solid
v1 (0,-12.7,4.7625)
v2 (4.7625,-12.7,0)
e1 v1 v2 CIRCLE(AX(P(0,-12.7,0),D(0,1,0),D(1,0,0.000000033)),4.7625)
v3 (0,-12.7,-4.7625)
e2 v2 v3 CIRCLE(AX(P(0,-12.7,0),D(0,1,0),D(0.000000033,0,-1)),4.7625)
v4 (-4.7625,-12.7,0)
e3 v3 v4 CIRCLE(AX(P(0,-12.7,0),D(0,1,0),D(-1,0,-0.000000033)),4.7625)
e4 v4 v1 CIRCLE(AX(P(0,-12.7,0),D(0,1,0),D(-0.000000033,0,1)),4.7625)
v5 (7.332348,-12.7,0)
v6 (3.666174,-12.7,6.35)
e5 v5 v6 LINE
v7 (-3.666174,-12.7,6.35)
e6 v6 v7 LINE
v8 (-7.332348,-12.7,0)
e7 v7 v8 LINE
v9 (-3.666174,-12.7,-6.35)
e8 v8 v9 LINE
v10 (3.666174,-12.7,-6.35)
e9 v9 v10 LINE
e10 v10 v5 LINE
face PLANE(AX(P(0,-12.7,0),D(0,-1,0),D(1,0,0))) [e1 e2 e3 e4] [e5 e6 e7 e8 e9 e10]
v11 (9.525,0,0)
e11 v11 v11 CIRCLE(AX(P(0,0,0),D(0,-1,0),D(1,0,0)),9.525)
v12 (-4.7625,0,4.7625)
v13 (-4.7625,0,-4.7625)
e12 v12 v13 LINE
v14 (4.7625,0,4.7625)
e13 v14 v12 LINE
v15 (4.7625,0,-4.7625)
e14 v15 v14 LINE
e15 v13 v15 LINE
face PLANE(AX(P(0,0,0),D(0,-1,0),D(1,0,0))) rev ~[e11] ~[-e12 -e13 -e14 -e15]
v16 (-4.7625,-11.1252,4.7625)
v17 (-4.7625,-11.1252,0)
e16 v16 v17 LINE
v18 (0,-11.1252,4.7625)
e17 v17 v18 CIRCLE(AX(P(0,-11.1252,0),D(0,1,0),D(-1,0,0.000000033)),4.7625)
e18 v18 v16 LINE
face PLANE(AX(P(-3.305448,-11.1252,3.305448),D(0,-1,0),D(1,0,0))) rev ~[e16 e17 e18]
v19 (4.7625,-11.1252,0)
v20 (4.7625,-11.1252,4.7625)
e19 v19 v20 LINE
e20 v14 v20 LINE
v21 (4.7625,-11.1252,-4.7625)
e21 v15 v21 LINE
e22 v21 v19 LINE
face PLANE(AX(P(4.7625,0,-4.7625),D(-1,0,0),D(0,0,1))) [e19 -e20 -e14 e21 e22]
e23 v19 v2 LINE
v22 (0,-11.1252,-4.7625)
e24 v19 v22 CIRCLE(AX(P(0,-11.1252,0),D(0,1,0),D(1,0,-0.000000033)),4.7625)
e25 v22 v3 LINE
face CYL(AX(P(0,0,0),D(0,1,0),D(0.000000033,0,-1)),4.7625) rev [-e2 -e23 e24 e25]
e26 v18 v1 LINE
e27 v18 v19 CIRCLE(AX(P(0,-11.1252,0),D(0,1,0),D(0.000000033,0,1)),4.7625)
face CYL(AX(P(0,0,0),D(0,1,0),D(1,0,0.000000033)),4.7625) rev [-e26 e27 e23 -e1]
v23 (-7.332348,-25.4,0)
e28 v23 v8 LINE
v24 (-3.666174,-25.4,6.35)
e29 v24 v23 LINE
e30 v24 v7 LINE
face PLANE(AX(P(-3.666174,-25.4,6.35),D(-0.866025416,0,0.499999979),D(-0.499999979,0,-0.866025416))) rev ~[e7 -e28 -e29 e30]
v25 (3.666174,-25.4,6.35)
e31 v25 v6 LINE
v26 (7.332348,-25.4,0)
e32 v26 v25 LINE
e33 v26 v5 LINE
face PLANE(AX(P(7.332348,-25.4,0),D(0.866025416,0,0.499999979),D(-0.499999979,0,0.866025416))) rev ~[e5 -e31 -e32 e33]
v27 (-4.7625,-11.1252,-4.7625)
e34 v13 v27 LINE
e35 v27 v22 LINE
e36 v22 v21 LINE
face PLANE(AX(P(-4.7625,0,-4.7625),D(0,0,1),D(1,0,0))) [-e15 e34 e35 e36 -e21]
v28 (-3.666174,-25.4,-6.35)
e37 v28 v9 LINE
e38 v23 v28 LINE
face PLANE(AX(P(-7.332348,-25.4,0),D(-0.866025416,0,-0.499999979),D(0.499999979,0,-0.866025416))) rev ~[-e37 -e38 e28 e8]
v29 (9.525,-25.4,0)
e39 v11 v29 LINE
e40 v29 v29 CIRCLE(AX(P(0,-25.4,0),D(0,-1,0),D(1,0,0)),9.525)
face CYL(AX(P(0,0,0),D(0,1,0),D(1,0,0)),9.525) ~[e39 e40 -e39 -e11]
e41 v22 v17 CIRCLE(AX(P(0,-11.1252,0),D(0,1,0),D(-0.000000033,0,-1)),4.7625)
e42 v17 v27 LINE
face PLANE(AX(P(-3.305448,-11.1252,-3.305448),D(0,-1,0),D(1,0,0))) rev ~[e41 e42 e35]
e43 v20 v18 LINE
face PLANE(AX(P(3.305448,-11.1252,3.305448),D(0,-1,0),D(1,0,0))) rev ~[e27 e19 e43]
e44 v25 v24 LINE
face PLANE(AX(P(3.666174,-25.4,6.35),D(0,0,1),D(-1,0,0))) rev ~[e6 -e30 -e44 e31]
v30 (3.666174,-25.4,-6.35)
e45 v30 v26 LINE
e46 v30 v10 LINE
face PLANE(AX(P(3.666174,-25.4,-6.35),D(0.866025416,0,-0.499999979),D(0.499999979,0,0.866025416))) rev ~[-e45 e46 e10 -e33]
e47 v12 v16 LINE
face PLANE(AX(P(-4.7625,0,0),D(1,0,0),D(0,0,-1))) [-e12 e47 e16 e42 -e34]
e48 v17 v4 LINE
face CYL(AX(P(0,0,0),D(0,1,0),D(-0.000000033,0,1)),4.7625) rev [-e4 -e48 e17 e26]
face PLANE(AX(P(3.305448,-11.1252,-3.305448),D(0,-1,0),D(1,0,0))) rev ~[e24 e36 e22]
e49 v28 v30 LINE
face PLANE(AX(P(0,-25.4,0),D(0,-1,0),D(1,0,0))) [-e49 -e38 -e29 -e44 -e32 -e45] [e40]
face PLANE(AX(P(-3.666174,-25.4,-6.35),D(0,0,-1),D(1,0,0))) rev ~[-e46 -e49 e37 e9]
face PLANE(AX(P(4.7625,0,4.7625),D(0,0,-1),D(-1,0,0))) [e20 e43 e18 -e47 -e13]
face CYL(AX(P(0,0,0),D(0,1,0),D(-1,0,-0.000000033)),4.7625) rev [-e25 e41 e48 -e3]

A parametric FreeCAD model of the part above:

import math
import FreeCAD as App
import Part
import Sketcher
Q = App.Units.Quantity

doc = App.newDocument("Part")
body = doc.addObject("PartDesign::Body", "Body")

# Sketch on XZ plane
sketch1 = doc.addObject("Sketcher::SketchObject", "Sketch")
body.addObject(sketch1)
sketch1.AttachmentSupport = (doc.XZ_Plane, [""])
sketch1.MapMode = "FlatFace"
sketch1.addGeometry(Part.Circle(App.Vector(0, 0, 0), App.Vector(0, 0, 1), 9.525), False)
sketch1.addConstraint(Sketcher.Constraint("Coincident", 0, 3, -1, 1))
sketch1.addConstraint(Sketcher.Constraint("Diameter", 0, Q("0.75 in")))
pad1 = doc.addObject("PartDesign::Pad", "Pad")
body.addObject(pad1)
pad1.Profile = sketch1
pad1.Length = Q("1 in")

# Sketch on XZ plane
sketch2 = doc.addObject("Sketcher::SketchObject", "Sketch001")
body.addObject(sketch2)
sketch2.AttachmentSupport = (doc.XZ_Plane, [""])
sketch2.MapMode = "FlatFace"
sketch2.addGeometry(Part.ArcOfCircle(Part.Circle(App.Vector(0, 0, 0), App.Vector(0, 0, 1), 4.7625), math.radians(-179.999998), math.radians(-90.000002)), False)
sketch2.addGeometry(Part.ArcOfCircle(Part.Circle(App.Vector(0, 0, 0), App.Vector(0, 0, 1), 4.7625), math.radians(-89.999998), math.radians(-0.000002)), False)
sketch2.addGeometry(Part.ArcOfCircle(Part.Circle(App.Vector(0, 0, 0), App.Vector(0, 0, 1), 4.7625), math.radians(0.000002), math.radians(89.999998)), False)
sketch2.addGeometry(Part.ArcOfCircle(Part.Circle(App.Vector(0, 0, 0), App.Vector(0, 0, 1), 4.7625), math.radians(90.000002), math.radians(179.999998)), False)
sketch2.addConstraint(Sketcher.Constraint("Tangent", 0, 2, 1, 1))
sketch2.addConstraint(Sketcher.Constraint("Tangent", 1, 2, 2, 1))
sketch2.addConstraint(Sketcher.Constraint("Tangent", 2, 2, 3, 1))
sketch2.addConstraint(Sketcher.Constraint("Tangent", 3, 2, 0, 1))
sketch2.addConstraint(Sketcher.Constraint("Coincident", 0, 3, -1, 1))
sketch2.addConstraint(Sketcher.Constraint("Equal", 0, 1))
sketch2.addConstraint(Sketcher.Constraint("PointOnObject", 0, 2, -2))
sketch2.addConstraint(Sketcher.Constraint("PointOnObject", 1, 2, -1))
sketch2.addConstraint(Sketcher.Constraint("PointOnObject", 2, 2, -2))
sketch2.addConstraint(Sketcher.Constraint("PointOnObject", 3, 2, -1))
sketch2.addConstraint(Sketcher.Constraint("Radius", 0, Q("0.1875 in")))
pocket1 = doc.addObject("PartDesign::Pocket", "Pocket")
body.addObject(pocket1)
pocket1.Profile = sketch2
pocket1.Type = "ThroughAll"
pocket1.Reversed = True

# Sketch on XZ plane
sketch3 = doc.addObject("Sketcher::SketchObject", "Sketch002")
body.addObject(sketch3)
sketch3.AttachmentSupport = (doc.XZ_Plane, [""])
sketch3.MapMode = "FlatFace"
sketch3.addGeometry(Part.ArcOfCircle(Part.Circle(App.Vector(0, 0, 0), App.Vector(0, 0, 1), 4.7625), math.radians(0.000002), math.radians(89.999998)), False)
sketch3.addGeometry(Part.LineSegment(App.Vector(4.7625, 0, 0), App.Vector(4.7625, 4.7625, 0)), False)
sketch3.addGeometry(Part.LineSegment(App.Vector(4.7625, 4.7625, 0), App.Vector(0, 4.7625, 0)), False)
sketch3.addGeometry(Part.LineSegment(App.Vector(-4.7625, 4.7625, 0), App.Vector(-4.7625, 0, 0)), False)
sketch3.addGeometry(Part.ArcOfCircle(Part.Circle(App.Vector(0, 0, 0), App.Vector(0, 0, 1), 4.7625), math.radians(90.000002), math.radians(179.999998)), False)
sketch3.addGeometry(Part.LineSegment(App.Vector(0, 4.7625, 0), App.Vector(-4.7625, 4.7625, 0)), False)
sketch3.addGeometry(Part.LineSegment(App.Vector(-4.7625, -4.7625, 0), App.Vector(0, -4.7625, 0)), False)
sketch3.addGeometry(Part.ArcOfCircle(Part.Circle(App.Vector(0, 0, 0), App.Vector(0, 0, 1), 4.7625), math.radians(-179.999998), math.radians(-90.000002)), False)
sketch3.addGeometry(Part.LineSegment(App.Vector(-4.7625, 0, 0), App.Vector(-4.7625, -4.7625, 0)), False)
sketch3.addGeometry(Part.LineSegment(App.Vector(0, -4.7625, 0), App.Vector(4.7625, -4.7625, 0)), False)
sketch3.addGeometry(Part.LineSegment(App.Vector(4.7625, -4.7625, 0), App.Vector(4.7625, 0, 0)), False)
sketch3.addGeometry(Part.ArcOfCircle(Part.Circle(App.Vector(0, 0, 0), App.Vector(0, 0, 1), 4.7625), math.radians(-89.999998), math.radians(-0.000002)), False)
sketch3.addConstraint(Sketcher.Constraint("Tangent", 0, 1, 1, 1))
sketch3.addConstraint(Sketcher.Constraint("Coincident", 1, 2, 2, 1))
sketch3.addConstraint(Sketcher.Constraint("Tangent", 2, 2, 0, 2))
sketch3.addConstraint(Sketcher.Constraint("Tangent", 3, 2, 4, 2))
sketch3.addConstraint(Sketcher.Constraint("Tangent", 4, 1, 5, 1))
sketch3.addConstraint(Sketcher.Constraint("Coincident", 5, 2, 3, 1))
sketch3.addConstraint(Sketcher.Constraint("Tangent", 6, 2, 7, 2))
sketch3.addConstraint(Sketcher.Constraint("Tangent", 7, 1, 8, 1))
sketch3.addConstraint(Sketcher.Constraint("Coincident", 8, 2, 6, 1))
sketch3.addConstraint(Sketcher.Constraint("Coincident", 9, 2, 10, 1))
sketch3.addConstraint(Sketcher.Constraint("Tangent", 10, 2, 11, 2))
sketch3.addConstraint(Sketcher.Constraint("Tangent", 11, 1, 9, 1))
sketch3.addConstraint(Sketcher.Constraint("Vertical", 1))
sketch3.addConstraint(Sketcher.Constraint("Horizontal", 2))
sketch3.addConstraint(Sketcher.Constraint("Vertical", 3))
sketch3.addConstraint(Sketcher.Constraint("Horizontal", 5))
sketch3.addConstraint(Sketcher.Constraint("Horizontal", 6))
sketch3.addConstraint(Sketcher.Constraint("Vertical", 8))
sketch3.addConstraint(Sketcher.Constraint("Horizontal", 9))
sketch3.addConstraint(Sketcher.Constraint("Vertical", 10))
sketch3.addConstraint(Sketcher.Constraint("Coincident", 0, 3, -1, 1))
sketch3.addConstraint(Sketcher.Constraint("Coincident", 4, 3, -1, 1))
sketch3.addConstraint(Sketcher.Constraint("Coincident", 7, 3, -1, 1))
sketch3.addConstraint(Sketcher.Constraint("Coincident", 11, 3, -1, 1))
sketch3.addConstraint(Sketcher.Constraint("Equal", 0, 4))
sketch3.addConstraint(Sketcher.Constraint("Equal", 4, 7))
sketch3.addConstraint(Sketcher.Constraint("Equal", 7, 11))
sketch3.addConstraint(Sketcher.Constraint("Radius", 0, Q("0.1875 in")))
pocket2 = doc.addObject("PartDesign::Pocket", "Pocket001")
body.addObject(pocket2)
pocket2.Profile = sketch3
pocket2.Length = Q("0.438 in")
pocket2.Reversed = True

# Sketch on XZ plane
sketch4 = doc.addObject("Sketcher::SketchObject", "Sketch003")
body.addObject(sketch4)
sketch4.AttachmentSupport = (doc.XZ_Plane, [""])
sketch4.MapMode = "FlatFace"
sketch4.AttachmentOffset = App.Placement(App.Vector(0, 0, 1 * 25.4), App.Rotation())
sketch4.addGeometry(Part.LineSegment(App.Vector(3.666174, -6.35, 0), App.Vector(7.332348, 0, 0)), False)
sketch4.addGeometry(Part.LineSegment(App.Vector(7.332348, 0, 0), App.Vector(3.666174, 6.35, 0)), False)
sketch4.addGeometry(Part.LineSegment(App.Vector(3.666174, 6.35, 0), App.Vector(-3.666174, 6.35, 0)), False)
sketch4.addGeometry(Part.LineSegment(App.Vector(-3.666174, 6.35, 0), App.Vector(-7.332348, 0, 0)), False)
sketch4.addGeometry(Part.LineSegment(App.Vector(-7.332348, 0, 0), App.Vector(-3.666174, -6.35, 0)), False)
sketch4.addGeometry(Part.LineSegment(App.Vector(-3.666174, -6.35, 0), App.Vector(3.666174, -6.35, 0)), False)
sketch4.addConstraint(Sketcher.Constraint("Coincident", 0, 2, 1, 1))
sketch4.addConstraint(Sketcher.Constraint("Coincident", 1, 2, 2, 1))
sketch4.addConstraint(Sketcher.Constraint("Coincident", 2, 2, 3, 1))
sketch4.addConstraint(Sketcher.Constraint("Coincident", 3, 2, 4, 1))
sketch4.addConstraint(Sketcher.Constraint("Coincident", 4, 2, 5, 1))
sketch4.addConstraint(Sketcher.Constraint("Coincident", 5, 2, 0, 1))
sketch4.addConstraint(Sketcher.Constraint("Horizontal", 2))
sketch4.addConstraint(Sketcher.Constraint("Horizontal", 5))
sketch4.addConstraint(Sketcher.Constraint("Symmetric", 0, 2, 3, 2, -1, 1))
sketch4.addConstraint(Sketcher.Constraint("Symmetric", 1, 2, 4, 2, -1, 1))
sketch4.addConstraint(Sketcher.Constraint("PointOnObject", 0, 2, -1))
sketch4.addConstraint(Sketcher.Constraint("Parallel", 0, 3))
sketch4.addConstraint(Sketcher.Constraint("Vertical", 2, 2, 4, 2))
sketch4.addConstraint(Sketcher.Constraint("Angle", 0, Q("60.000001 deg")))
sketch4.addConstraint(Sketcher.Constraint("DistanceY", 4, 2, 2, 2, Q("0.5 in")))
sketch4.addConstraint(Sketcher.Constraint("DistanceX", 2, 2, 2, 1, 7.332348))
pocket3 = doc.addObject("PartDesign::Pocket", "Pocket002")
body.addObject(pocket3)
pocket3.Profile = sketch4
pocket3.Length = Q("0.5 in")

doc.recompute()
